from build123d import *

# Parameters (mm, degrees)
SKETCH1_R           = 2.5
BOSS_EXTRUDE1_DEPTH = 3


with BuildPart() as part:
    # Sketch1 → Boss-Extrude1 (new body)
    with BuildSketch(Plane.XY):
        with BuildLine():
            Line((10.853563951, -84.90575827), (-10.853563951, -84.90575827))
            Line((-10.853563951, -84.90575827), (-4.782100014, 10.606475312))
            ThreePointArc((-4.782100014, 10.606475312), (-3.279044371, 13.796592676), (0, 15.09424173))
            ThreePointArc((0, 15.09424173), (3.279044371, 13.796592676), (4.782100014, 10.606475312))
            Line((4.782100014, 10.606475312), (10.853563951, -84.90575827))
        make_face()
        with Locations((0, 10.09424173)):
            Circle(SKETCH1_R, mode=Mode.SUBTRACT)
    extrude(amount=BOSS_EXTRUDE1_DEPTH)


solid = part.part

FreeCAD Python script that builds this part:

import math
import FreeCAD as App
import Part
import Sketcher

V = App.Vector
Q = App.Units.Quantity

doc = App.newDocument("Part")
body = doc.addObject("PartDesign::Body", "Body")

# Sketch on XY plane
sketch1 = body.newObject("Sketcher::SketchObject", "Sketch")
sketch1.AttachmentSupport = (doc.getObject("XY_Plane"), [""])
sketch1.MapMode = "FlatFace"
sketch1.addGeometry(Part.LineSegment(V(-10.853564, -84.905758, 0), V(10.853564, -84.905758, 0)), False)
sketch1.addGeometry(Part.LineSegment(V(10.853564, -84.905758, 0), V(4.7821, 10.606475, 0)), False)
sketch1.addGeometry(Part.ArcOfCircle(Part.Circle(V(0, 10.30249, 0), V(0, 0, 1), 4.791752), math.radians(3.63725), math.radians(90)), False)
sketch1.addGeometry(Part.ArcOfCircle(Part.Circle(V(0, 10.30249, 0), V(0, 0, 1), 4.791752), math.radians(90), math.radians(176.36275)), False)
sketch1.addGeometry(Part.LineSegment(V(-4.7821, 10.606475, 0), V(-10.853564, -84.905758, 0)), False)
sketch1.addGeometry(Part.Circle(V(0, 10.094242, 0), V(0, 0, 1), 2.5), False)
sketch1.addConstraint(Sketcher.Constraint("Coincident", 0, 2, 1, 1))
sketch1.addConstraint(Sketcher.Constraint("Tangent", 1, 2, 2, 1))
sketch1.addConstraint(Sketcher.Constraint("Tangent", 2, 2, 3, 1))
sketch1.addConstraint(Sketcher.Constraint("Tangent", 3, 2, 4, 1))
sketch1.addConstraint(Sketcher.Constraint("Coincident", 4, 2, 0, 1))
sketch1.addConstraint(Sketcher.Constraint("Horizontal", 0))
sketch1.addConstraint(Sketcher.Constraint("Equal", 2, 3))
sketch1.addConstraint(Sketcher.Constraint("Symmetric", 1, 2, 3, 2, -2))
sketch1.addConstraint(Sketcher.Constraint("PointOnObject", 5, 3, -2))
sketch1.addConstraint(Sketcher.Constraint("PointOnObject", 2, 2, -2))
sketch1.addConstraint(Sketcher.Constraint("Diameter", 5, Q("5 mm")))
sketch1.addConstraint(Sketcher.Constraint("DistanceY", 0, 2, 5, 3, Q("95 mm")))
sketch1.addConstraint(Sketcher.Constraint("DistanceY", 5, 3, 2, 2, Q("5 mm")))
sketch1.addConstraint(Sketcher.Constraint("Radius", 2, Q("4.791752 mm")))
sketch1.addConstraint(Sketcher.Constraint("DistanceX", 0, 1, 0, 2, Q("21.707128 mm")))
sketch1.addConstraint(Sketcher.Constraint("DistanceY", -1, 1, 2, 3, Q("10.30249 mm")))
pad1 = body.newObject("PartDesign::Pad", "Pad")
pad1.Profile = sketch1
pad1.Length = 3

doc.recompute()
